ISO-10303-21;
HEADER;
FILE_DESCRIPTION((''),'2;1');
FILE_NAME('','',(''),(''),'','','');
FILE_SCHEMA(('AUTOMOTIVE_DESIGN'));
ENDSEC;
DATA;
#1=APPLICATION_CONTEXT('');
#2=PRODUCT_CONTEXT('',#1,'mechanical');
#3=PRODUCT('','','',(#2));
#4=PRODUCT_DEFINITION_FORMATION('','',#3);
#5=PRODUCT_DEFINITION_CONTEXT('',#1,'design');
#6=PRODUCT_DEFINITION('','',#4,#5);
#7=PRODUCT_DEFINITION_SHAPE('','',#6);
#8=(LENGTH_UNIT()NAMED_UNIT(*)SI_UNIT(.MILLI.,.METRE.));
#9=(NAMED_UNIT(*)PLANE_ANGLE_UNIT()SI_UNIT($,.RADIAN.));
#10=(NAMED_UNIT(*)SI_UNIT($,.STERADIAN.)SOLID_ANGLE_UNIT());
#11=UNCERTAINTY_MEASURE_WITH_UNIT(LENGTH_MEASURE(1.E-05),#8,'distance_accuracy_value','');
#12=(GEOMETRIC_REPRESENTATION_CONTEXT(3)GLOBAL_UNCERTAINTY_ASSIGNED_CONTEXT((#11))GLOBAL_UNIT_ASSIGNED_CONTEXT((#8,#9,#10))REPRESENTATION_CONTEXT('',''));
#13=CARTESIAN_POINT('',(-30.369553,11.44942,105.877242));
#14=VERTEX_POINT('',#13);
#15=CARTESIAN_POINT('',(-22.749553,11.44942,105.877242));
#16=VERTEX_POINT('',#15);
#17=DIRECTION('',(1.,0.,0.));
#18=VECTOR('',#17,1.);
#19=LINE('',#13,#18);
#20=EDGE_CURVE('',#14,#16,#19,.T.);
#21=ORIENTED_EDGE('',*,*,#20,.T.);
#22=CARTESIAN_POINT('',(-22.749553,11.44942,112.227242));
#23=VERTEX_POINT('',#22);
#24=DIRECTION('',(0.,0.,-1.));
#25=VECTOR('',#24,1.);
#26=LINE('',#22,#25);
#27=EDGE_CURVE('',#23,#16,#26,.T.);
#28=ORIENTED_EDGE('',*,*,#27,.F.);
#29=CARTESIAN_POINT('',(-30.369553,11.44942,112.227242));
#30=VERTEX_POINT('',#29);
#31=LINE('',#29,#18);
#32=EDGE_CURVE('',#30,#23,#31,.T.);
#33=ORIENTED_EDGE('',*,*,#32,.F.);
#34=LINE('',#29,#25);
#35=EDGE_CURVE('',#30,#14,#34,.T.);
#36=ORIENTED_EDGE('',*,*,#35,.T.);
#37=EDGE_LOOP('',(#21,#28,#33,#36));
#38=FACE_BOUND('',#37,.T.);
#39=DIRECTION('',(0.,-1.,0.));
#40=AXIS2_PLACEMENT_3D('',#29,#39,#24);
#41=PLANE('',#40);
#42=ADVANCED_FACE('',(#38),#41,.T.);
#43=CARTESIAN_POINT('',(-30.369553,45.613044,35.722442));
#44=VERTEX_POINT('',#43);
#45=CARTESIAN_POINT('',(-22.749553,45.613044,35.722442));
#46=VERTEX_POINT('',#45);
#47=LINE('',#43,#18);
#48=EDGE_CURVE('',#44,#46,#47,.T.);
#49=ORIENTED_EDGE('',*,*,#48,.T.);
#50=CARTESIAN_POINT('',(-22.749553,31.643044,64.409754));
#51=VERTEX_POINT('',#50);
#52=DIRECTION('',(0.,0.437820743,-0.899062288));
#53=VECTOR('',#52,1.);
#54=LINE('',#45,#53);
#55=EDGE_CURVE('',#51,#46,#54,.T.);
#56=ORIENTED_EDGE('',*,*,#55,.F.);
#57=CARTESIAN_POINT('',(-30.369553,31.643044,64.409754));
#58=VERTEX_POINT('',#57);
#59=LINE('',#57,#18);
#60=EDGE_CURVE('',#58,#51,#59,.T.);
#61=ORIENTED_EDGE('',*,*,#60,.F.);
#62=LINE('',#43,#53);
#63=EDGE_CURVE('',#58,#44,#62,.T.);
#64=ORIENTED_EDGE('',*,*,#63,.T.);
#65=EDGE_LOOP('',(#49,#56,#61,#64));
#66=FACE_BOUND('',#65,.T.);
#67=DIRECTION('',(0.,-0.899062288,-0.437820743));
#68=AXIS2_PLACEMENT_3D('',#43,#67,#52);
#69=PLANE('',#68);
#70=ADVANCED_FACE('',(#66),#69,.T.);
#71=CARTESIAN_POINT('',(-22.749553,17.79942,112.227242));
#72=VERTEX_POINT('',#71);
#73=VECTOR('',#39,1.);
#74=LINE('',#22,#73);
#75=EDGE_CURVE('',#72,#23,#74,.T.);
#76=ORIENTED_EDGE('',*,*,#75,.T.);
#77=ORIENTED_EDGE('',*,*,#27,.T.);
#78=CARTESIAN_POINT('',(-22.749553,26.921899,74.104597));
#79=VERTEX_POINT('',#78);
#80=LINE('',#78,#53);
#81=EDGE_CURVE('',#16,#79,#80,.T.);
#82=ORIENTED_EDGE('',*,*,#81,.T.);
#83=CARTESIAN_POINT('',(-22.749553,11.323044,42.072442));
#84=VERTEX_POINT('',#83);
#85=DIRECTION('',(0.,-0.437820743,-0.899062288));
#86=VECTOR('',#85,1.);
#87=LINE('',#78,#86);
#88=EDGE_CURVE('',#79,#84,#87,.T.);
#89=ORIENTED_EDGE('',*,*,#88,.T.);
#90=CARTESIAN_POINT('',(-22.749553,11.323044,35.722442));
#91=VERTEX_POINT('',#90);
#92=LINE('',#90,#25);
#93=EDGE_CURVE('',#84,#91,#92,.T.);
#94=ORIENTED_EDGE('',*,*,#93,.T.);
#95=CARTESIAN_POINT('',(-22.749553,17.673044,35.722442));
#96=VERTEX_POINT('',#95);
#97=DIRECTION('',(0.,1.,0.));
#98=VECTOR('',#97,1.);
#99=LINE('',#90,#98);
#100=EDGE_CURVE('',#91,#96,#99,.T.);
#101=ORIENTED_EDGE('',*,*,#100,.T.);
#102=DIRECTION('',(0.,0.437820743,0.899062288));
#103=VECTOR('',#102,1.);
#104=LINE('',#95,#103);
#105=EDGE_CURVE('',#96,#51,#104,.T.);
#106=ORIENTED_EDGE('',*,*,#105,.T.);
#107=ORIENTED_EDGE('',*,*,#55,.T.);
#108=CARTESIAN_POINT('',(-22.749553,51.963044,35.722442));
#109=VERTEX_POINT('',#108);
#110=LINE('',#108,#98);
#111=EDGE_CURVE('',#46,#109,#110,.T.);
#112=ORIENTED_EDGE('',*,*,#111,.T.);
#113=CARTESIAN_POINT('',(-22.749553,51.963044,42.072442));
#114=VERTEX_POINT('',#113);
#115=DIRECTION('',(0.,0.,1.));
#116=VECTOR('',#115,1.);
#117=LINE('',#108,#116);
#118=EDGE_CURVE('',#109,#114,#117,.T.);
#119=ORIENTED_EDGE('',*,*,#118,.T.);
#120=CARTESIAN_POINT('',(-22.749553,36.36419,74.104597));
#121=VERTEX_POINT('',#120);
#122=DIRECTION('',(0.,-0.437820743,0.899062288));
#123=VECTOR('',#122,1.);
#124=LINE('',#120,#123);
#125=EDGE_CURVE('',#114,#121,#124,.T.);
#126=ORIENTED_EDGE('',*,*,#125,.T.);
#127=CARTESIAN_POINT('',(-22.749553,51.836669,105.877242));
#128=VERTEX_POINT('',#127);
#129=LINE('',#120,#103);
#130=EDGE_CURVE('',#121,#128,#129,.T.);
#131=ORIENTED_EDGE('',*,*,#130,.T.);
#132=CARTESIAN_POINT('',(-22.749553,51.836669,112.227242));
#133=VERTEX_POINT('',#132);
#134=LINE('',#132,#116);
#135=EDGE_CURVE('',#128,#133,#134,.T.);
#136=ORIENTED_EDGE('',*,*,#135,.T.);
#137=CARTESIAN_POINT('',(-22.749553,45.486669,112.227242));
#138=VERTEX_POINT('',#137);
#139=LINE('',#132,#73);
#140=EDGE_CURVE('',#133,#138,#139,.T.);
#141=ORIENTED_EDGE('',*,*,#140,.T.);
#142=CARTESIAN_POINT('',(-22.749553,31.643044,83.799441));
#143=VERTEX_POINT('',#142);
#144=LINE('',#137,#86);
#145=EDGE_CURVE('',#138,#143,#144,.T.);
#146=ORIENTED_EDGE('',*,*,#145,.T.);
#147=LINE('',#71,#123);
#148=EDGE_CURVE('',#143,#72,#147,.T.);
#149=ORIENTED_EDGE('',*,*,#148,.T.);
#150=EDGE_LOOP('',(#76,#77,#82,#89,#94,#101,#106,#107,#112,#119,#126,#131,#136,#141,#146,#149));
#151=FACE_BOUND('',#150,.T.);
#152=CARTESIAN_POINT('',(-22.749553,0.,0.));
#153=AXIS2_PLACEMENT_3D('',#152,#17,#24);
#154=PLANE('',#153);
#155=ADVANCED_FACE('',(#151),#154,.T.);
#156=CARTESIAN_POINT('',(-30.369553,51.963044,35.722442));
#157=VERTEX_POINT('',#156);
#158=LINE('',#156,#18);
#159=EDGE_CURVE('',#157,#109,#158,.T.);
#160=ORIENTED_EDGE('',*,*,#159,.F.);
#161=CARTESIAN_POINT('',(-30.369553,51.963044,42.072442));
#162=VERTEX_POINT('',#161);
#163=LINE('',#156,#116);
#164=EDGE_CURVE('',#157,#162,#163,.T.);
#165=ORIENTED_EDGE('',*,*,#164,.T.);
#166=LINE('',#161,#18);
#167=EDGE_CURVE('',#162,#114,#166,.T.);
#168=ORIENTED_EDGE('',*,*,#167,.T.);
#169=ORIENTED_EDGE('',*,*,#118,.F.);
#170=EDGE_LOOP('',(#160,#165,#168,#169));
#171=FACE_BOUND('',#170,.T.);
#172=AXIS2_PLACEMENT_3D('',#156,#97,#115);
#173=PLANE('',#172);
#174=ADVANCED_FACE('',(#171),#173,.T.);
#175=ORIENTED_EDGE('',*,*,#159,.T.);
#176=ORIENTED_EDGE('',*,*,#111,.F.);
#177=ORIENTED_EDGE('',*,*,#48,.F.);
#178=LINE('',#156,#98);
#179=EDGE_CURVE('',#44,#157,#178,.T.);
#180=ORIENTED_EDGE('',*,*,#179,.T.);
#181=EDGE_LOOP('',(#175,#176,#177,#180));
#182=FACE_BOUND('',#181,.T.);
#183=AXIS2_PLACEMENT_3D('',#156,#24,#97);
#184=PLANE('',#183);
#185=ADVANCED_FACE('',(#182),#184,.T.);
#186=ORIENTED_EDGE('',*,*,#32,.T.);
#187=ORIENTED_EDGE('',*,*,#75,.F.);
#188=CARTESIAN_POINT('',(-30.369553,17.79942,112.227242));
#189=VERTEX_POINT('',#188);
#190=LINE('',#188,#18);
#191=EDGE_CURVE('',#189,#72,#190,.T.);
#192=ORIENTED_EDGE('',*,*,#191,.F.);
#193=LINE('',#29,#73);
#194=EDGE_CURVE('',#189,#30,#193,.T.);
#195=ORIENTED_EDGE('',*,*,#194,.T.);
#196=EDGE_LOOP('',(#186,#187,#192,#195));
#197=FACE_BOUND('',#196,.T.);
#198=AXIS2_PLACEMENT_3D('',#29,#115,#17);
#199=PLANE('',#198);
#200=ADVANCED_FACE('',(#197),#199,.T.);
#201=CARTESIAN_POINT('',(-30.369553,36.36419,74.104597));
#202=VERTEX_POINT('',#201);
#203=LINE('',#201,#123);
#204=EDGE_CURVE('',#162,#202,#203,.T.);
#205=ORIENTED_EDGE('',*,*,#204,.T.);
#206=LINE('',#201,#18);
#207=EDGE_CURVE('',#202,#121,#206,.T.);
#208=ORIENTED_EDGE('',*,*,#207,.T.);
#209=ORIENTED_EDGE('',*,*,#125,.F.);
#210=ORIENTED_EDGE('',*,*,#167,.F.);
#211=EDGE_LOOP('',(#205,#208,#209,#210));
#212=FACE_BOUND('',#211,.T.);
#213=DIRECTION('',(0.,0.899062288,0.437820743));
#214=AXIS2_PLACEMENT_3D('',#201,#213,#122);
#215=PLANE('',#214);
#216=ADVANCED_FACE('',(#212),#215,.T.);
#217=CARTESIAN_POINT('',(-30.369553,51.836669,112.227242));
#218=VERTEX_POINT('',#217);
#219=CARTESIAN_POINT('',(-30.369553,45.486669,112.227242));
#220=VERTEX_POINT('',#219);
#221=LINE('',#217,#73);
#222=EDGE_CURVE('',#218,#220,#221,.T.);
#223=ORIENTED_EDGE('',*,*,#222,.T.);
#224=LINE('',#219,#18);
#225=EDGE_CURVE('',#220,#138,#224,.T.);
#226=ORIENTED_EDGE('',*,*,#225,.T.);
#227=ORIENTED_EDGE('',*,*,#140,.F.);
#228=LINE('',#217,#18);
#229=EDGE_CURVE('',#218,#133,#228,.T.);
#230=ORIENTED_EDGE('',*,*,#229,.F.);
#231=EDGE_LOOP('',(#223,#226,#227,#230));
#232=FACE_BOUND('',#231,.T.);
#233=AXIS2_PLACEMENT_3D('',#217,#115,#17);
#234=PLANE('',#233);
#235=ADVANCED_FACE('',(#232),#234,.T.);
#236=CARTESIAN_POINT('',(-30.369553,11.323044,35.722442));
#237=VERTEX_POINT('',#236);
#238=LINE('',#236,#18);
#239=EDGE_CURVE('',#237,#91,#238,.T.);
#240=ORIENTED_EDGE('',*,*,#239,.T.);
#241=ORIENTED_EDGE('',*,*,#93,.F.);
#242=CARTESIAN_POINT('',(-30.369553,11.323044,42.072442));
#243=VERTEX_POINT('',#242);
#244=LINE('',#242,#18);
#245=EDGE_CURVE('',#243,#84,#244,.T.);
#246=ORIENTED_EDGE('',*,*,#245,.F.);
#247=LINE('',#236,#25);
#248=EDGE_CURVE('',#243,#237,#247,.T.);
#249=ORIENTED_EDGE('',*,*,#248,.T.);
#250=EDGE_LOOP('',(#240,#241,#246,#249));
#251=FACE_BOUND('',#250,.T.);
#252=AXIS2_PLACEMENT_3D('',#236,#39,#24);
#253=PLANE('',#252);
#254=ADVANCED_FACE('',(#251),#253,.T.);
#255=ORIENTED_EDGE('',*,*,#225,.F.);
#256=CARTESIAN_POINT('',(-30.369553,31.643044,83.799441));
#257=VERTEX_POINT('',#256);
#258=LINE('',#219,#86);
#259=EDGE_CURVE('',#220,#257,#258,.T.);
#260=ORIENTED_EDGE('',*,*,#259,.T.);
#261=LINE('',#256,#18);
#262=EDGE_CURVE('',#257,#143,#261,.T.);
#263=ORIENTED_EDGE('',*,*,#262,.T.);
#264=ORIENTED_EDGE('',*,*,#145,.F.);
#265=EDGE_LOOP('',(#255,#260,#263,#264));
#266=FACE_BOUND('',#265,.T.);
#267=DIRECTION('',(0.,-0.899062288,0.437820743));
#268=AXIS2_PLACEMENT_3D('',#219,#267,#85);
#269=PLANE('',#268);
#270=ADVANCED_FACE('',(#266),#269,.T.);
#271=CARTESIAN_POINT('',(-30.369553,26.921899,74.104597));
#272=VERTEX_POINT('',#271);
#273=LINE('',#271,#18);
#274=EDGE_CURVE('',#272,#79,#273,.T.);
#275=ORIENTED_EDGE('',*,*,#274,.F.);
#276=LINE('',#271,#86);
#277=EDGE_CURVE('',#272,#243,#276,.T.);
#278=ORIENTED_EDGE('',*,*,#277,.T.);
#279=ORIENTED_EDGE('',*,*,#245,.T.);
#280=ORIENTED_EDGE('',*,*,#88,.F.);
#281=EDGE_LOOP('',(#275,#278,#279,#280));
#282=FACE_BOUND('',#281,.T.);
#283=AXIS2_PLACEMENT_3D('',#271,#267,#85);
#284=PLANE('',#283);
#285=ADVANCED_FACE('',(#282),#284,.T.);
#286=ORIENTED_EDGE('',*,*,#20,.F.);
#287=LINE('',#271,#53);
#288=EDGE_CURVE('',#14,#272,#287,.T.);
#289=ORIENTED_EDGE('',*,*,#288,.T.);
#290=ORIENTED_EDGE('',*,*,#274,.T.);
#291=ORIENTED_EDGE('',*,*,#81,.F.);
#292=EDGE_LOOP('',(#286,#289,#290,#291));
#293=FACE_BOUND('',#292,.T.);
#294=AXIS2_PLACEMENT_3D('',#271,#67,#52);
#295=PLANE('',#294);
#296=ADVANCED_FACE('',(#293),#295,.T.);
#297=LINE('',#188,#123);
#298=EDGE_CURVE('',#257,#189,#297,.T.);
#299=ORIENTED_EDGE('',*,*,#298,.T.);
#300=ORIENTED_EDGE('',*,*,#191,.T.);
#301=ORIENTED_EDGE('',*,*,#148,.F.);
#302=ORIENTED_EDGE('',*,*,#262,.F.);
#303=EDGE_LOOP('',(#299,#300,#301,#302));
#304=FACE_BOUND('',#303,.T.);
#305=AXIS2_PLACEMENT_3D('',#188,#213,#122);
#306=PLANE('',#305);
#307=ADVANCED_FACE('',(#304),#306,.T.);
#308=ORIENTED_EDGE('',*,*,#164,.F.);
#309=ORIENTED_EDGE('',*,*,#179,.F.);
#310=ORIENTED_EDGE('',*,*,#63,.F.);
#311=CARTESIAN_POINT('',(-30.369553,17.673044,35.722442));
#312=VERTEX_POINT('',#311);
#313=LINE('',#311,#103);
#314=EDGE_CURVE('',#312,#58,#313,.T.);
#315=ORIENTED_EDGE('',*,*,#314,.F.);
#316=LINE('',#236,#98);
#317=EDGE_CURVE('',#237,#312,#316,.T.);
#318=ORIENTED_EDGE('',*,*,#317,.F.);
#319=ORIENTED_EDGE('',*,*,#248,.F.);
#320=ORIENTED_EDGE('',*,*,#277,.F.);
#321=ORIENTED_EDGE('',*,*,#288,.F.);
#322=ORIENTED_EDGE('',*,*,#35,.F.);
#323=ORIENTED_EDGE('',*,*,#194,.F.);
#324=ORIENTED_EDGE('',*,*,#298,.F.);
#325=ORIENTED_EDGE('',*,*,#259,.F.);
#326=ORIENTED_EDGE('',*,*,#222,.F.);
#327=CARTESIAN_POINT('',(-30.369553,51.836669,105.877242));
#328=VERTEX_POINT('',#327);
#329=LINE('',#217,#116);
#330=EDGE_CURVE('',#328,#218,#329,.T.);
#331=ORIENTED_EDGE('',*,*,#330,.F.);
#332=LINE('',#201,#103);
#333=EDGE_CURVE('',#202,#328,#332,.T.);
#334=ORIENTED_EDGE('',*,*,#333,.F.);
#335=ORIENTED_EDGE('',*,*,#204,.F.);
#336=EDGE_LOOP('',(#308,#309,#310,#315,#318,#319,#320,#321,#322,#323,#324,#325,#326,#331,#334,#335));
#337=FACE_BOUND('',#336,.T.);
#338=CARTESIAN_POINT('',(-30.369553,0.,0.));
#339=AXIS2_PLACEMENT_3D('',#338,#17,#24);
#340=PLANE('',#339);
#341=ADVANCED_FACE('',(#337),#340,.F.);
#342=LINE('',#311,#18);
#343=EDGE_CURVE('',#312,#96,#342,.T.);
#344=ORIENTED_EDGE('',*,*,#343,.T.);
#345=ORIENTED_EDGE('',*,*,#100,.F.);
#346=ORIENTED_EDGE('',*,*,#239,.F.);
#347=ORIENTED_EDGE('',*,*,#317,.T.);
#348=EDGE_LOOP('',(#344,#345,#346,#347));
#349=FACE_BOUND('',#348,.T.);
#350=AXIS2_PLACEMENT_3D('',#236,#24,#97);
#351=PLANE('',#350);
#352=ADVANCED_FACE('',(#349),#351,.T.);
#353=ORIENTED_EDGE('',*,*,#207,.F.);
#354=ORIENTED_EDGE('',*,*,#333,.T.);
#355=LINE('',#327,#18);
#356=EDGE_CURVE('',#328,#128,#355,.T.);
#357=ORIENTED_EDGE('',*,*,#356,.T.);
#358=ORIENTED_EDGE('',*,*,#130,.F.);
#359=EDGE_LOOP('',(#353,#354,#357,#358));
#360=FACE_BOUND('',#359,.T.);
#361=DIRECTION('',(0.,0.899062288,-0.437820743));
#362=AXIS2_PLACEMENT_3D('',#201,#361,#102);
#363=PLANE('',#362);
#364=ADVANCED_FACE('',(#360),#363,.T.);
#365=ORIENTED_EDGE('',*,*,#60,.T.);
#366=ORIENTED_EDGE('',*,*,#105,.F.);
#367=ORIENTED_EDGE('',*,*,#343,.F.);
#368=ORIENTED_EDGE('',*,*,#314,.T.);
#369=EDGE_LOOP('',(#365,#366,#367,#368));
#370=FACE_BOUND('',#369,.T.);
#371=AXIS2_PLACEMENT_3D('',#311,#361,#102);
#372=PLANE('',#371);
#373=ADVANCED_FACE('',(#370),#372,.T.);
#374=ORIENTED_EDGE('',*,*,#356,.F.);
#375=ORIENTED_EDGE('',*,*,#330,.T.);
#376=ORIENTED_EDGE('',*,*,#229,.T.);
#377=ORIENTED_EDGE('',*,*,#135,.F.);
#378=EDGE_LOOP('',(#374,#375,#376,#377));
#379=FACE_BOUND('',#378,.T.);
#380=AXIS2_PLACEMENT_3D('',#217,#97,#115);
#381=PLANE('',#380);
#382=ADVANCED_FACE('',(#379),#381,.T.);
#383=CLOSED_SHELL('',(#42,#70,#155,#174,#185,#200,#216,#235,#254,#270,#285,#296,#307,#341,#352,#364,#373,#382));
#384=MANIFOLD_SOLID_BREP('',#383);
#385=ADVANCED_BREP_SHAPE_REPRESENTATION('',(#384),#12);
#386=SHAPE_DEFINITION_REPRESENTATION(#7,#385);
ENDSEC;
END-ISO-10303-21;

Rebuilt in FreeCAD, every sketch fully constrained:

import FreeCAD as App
import Part
import Sketcher
Q = App.Units.Quantity


def add_polygon(sketch, points):
    """Adds a closed chain of lines whose ends are joined by coincident constraints."""
    first, n = sketch.GeometryCount, len(points)
    for a, b in zip(points, points[1:] + points[:1]):
        sketch.addGeometry(Part.LineSegment(App.Vector(*a, 0), App.Vector(*b, 0)), False)
    for i in range(n):
        sketch.addConstraint(Sketcher.Constraint("Coincident", first + i, 2, first + (i + 1) % n, 1))

doc = App.newDocument("Part")
body = doc.addObject("PartDesign::Body", "Body")

sketch1 = body.newObject("Sketcher::SketchObject", "Sketch")
sketch1.AttachmentSupport = (doc.getObject("YZ_Plane"), [""])
sketch1.MapMode = "FlatFace"
sketch1.AttachmentOffset = App.Placement(App.Vector(0, 0, -22.749553), App.Rotation())
add_polygon(sketch1, [(51.836669, 105.877242), (51.836669, 112.227242), (45.486669, 112.227242), (31.643044, 83.799441), (17.79942, 112.227242), (11.44942, 112.227242), (11.44942, 105.877242), (26.921899, 74.104597), (11.323044, 42.072442), (11.323044, 35.722442), (17.673044, 35.722442), (31.643044, 64.409754), (45.613044, 35.722442), (51.963044, 35.722442), (51.963044, 42.072442), (36.36419, 74.104597)])
sketch1.addConstraint(Sketcher.Constraint("Vertical", 0))
sketch1.addConstraint(Sketcher.Constraint("Horizontal", 1))
sketch1.addConstraint(Sketcher.Constraint("Horizontal", 4))
sketch1.addConstraint(Sketcher.Constraint("Vertical", 5))
sketch1.addConstraint(Sketcher.Constraint("Vertical", 8))
sketch1.addConstraint(Sketcher.Constraint("Horizontal", 9))
sketch1.addConstraint(Sketcher.Constraint("Horizontal", 12))
sketch1.addConstraint(Sketcher.Constraint("Vertical", 13))
sketch1.addConstraint(Sketcher.Constraint("Parallel", 3, 6))
sketch1.addConstraint(Sketcher.Constraint("Parallel", 2, 7))
sketch1.addConstraint(Sketcher.Constraint("Parallel", 7, 10))
sketch1.addConstraint(Sketcher.Constraint("Parallel", 6, 11))
sketch1.addConstraint(Sketcher.Constraint("Parallel", 11, 14))
sketch1.addConstraint(Sketcher.Constraint("Parallel", 10, 15))
sketch1.addConstraint(Sketcher.Constraint("Horizontal", 1, 2, 3, 2))
sketch1.addConstraint(Sketcher.Constraint("Horizontal", 9, 2, 11, 2))
sketch1.addConstraint(Sketcher.Constraint("Horizontal", 7, 2, 13, 2))
sketch1.addConstraint(Sketcher.Constraint("Horizontal", 6, 2, 14, 2))
sketch1.addConstraint(Sketcher.Constraint("Horizontal", 5, 2, 15, 2))
sketch1.addConstraint(Sketcher.Constraint("Vertical", 2, 2, 10, 2))
sketch1.addConstraint(Sketcher.Constraint("Equal", 1, 4))
sketch1.addConstraint(Sketcher.Constraint("Equal", 4, 9))
sketch1.addConstraint(Sketcher.Constraint("Equal", 9, 12))
sketch1.addConstraint(Sketcher.Constraint("Equal", 12, 0))
sketch1.addConstraint(Sketcher.Constraint("Equal", 5, 8))
sketch1.addConstraint(Sketcher.Constraint("DistanceX", 1, 2, 1, 1, Q("0.25 in")))
sketch1.addConstraint(Sketcher.Constraint("DistanceX", 7, 2, 2, 2, Q("0.8 in")))
sketch1.addConstraint(Sketcher.Constraint("DistanceY", 7, 2, 5, 2, Q("2.512 in")))
sketch1.addConstraint(Sketcher.Constraint("DistanceX", -1, 1, 6, 2, Q("26.921899 mm")))
sketch1.addConstraint(Sketcher.Constraint("DistanceY", 2, 2, 1, 2, Q("28.427801 mm")))
sketch1.addConstraint(Sketcher.Constraint("Distance", 2, Q("31.61939 mm")))
sketch1.addConstraint(Sketcher.Constraint("DistanceY", -1, 1, 0, 2, Q("112.227242 mm")))
pad1 = body.newObject("PartDesign::Pad", "Pad")
pad1.Profile = sketch1
pad1.Length = Q("0.3 in")
pad1.Reversed = True

doc.recompute()
